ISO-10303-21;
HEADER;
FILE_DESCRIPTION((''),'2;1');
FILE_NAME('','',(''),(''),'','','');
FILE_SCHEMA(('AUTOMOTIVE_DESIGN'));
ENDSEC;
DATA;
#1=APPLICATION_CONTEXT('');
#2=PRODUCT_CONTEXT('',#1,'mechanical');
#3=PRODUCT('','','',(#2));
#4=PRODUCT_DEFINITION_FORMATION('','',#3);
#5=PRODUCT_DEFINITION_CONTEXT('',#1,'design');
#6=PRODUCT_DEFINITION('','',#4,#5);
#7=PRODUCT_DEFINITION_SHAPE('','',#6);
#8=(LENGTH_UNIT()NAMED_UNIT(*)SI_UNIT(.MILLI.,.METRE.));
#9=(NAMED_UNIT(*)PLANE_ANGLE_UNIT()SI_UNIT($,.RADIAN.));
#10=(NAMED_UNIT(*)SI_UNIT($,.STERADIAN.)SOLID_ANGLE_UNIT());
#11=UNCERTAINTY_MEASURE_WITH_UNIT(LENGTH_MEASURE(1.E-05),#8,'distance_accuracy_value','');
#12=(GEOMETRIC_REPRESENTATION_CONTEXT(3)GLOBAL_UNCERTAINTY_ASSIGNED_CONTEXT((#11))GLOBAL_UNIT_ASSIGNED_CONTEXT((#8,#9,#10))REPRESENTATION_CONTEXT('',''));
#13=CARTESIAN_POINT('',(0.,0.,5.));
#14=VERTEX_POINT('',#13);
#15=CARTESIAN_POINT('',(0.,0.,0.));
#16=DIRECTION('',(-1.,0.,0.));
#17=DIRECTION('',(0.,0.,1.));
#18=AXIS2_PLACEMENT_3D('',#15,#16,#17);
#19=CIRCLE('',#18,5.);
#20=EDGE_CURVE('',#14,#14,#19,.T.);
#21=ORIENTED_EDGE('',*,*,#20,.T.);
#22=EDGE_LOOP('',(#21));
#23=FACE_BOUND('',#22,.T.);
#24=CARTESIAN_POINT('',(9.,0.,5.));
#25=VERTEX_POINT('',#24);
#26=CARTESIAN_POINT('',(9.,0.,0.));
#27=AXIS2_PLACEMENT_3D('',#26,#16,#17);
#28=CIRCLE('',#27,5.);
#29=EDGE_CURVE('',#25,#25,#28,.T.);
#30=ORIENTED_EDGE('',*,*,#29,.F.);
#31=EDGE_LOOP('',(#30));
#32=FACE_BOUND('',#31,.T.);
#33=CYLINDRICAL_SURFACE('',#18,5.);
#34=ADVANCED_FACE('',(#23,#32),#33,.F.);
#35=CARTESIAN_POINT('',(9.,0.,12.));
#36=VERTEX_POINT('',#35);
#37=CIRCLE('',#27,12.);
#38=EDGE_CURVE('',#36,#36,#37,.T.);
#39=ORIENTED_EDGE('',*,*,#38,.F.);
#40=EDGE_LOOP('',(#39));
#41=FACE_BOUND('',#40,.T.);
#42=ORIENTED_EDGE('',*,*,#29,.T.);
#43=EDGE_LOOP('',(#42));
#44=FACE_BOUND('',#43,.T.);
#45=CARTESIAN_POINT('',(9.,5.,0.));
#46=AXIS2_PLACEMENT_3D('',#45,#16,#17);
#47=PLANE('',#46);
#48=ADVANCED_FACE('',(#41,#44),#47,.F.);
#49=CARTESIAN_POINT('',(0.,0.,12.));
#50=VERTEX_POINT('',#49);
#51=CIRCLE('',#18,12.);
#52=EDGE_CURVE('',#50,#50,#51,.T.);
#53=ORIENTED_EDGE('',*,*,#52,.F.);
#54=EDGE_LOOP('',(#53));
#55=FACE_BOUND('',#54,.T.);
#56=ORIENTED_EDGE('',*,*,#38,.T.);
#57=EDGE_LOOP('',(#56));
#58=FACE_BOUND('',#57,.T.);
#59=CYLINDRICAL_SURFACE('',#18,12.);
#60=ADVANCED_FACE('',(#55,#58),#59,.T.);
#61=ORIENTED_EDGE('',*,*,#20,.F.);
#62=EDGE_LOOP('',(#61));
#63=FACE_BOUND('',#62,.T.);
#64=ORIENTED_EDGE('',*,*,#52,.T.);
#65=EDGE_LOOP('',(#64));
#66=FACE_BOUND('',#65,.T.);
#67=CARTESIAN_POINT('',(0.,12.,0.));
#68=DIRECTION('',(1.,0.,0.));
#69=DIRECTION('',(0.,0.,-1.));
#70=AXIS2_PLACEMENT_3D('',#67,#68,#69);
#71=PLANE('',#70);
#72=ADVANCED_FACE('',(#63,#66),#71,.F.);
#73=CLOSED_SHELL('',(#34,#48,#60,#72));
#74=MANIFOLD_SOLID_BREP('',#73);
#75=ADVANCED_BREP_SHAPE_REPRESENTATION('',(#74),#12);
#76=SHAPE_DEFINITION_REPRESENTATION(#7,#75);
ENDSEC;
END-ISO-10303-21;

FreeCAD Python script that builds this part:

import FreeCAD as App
import Part
import Sketcher
from FreeCAD import Vector

doc = App.newDocument("Part")
body = doc.addObject("PartDesign::Body", "Body")

sketch1 = body.newObject("Sketcher::SketchObject", "Sketch")
sketch1.AttachmentSupport = (doc.getObject("XY_Plane"), [""])
sketch1.MapMode = "FlatFace"
sketch1.addGeometry([
    Part.LineSegment(Vector(0, 12, 0), Vector(0, 5, 0)),
    Part.LineSegment(Vector(0, 5, 0), Vector(9, 5, 0)),
    Part.LineSegment(Vector(9, 5, 0), Vector(9, 12, 0)),
    Part.LineSegment(Vector(9, 12, 0), Vector(0, 12, 0)),
], False)
sketch1.addConstraint([
    Sketcher.Constraint("Coincident", 0, 2, 1, 1),
    Sketcher.Constraint("Coincident", 1, 2, 2, 1),
    Sketcher.Constraint("Coincident", 2, 2, 3, 1),
    Sketcher.Constraint("Coincident", 3, 2, 0, 1),
    Sketcher.Constraint("Vertical", 0),
    Sketcher.Constraint("Horizontal", 1),
    Sketcher.Constraint("Vertical", 2),
    Sketcher.Constraint("Horizontal", 3),
    Sketcher.Constraint("PointOnObject", 0, 2, -2),
    Sketcher.Constraint("DistanceX", 1, 1, 1, 2, 9.0),
    Sketcher.Constraint("DistanceY", 0, 2, 0, 1, 7.0),
    Sketcher.Constraint("DistanceY", -1, 1, 0, 2, 5.0),
])
revolution = body.newObject("PartDesign::Revolution", "Revolution")
revolution.Profile = sketch1
revolution.ReferenceAxis = (sketch1, ["H_Axis"])
revolution.Angle = 360

doc.recompute()
